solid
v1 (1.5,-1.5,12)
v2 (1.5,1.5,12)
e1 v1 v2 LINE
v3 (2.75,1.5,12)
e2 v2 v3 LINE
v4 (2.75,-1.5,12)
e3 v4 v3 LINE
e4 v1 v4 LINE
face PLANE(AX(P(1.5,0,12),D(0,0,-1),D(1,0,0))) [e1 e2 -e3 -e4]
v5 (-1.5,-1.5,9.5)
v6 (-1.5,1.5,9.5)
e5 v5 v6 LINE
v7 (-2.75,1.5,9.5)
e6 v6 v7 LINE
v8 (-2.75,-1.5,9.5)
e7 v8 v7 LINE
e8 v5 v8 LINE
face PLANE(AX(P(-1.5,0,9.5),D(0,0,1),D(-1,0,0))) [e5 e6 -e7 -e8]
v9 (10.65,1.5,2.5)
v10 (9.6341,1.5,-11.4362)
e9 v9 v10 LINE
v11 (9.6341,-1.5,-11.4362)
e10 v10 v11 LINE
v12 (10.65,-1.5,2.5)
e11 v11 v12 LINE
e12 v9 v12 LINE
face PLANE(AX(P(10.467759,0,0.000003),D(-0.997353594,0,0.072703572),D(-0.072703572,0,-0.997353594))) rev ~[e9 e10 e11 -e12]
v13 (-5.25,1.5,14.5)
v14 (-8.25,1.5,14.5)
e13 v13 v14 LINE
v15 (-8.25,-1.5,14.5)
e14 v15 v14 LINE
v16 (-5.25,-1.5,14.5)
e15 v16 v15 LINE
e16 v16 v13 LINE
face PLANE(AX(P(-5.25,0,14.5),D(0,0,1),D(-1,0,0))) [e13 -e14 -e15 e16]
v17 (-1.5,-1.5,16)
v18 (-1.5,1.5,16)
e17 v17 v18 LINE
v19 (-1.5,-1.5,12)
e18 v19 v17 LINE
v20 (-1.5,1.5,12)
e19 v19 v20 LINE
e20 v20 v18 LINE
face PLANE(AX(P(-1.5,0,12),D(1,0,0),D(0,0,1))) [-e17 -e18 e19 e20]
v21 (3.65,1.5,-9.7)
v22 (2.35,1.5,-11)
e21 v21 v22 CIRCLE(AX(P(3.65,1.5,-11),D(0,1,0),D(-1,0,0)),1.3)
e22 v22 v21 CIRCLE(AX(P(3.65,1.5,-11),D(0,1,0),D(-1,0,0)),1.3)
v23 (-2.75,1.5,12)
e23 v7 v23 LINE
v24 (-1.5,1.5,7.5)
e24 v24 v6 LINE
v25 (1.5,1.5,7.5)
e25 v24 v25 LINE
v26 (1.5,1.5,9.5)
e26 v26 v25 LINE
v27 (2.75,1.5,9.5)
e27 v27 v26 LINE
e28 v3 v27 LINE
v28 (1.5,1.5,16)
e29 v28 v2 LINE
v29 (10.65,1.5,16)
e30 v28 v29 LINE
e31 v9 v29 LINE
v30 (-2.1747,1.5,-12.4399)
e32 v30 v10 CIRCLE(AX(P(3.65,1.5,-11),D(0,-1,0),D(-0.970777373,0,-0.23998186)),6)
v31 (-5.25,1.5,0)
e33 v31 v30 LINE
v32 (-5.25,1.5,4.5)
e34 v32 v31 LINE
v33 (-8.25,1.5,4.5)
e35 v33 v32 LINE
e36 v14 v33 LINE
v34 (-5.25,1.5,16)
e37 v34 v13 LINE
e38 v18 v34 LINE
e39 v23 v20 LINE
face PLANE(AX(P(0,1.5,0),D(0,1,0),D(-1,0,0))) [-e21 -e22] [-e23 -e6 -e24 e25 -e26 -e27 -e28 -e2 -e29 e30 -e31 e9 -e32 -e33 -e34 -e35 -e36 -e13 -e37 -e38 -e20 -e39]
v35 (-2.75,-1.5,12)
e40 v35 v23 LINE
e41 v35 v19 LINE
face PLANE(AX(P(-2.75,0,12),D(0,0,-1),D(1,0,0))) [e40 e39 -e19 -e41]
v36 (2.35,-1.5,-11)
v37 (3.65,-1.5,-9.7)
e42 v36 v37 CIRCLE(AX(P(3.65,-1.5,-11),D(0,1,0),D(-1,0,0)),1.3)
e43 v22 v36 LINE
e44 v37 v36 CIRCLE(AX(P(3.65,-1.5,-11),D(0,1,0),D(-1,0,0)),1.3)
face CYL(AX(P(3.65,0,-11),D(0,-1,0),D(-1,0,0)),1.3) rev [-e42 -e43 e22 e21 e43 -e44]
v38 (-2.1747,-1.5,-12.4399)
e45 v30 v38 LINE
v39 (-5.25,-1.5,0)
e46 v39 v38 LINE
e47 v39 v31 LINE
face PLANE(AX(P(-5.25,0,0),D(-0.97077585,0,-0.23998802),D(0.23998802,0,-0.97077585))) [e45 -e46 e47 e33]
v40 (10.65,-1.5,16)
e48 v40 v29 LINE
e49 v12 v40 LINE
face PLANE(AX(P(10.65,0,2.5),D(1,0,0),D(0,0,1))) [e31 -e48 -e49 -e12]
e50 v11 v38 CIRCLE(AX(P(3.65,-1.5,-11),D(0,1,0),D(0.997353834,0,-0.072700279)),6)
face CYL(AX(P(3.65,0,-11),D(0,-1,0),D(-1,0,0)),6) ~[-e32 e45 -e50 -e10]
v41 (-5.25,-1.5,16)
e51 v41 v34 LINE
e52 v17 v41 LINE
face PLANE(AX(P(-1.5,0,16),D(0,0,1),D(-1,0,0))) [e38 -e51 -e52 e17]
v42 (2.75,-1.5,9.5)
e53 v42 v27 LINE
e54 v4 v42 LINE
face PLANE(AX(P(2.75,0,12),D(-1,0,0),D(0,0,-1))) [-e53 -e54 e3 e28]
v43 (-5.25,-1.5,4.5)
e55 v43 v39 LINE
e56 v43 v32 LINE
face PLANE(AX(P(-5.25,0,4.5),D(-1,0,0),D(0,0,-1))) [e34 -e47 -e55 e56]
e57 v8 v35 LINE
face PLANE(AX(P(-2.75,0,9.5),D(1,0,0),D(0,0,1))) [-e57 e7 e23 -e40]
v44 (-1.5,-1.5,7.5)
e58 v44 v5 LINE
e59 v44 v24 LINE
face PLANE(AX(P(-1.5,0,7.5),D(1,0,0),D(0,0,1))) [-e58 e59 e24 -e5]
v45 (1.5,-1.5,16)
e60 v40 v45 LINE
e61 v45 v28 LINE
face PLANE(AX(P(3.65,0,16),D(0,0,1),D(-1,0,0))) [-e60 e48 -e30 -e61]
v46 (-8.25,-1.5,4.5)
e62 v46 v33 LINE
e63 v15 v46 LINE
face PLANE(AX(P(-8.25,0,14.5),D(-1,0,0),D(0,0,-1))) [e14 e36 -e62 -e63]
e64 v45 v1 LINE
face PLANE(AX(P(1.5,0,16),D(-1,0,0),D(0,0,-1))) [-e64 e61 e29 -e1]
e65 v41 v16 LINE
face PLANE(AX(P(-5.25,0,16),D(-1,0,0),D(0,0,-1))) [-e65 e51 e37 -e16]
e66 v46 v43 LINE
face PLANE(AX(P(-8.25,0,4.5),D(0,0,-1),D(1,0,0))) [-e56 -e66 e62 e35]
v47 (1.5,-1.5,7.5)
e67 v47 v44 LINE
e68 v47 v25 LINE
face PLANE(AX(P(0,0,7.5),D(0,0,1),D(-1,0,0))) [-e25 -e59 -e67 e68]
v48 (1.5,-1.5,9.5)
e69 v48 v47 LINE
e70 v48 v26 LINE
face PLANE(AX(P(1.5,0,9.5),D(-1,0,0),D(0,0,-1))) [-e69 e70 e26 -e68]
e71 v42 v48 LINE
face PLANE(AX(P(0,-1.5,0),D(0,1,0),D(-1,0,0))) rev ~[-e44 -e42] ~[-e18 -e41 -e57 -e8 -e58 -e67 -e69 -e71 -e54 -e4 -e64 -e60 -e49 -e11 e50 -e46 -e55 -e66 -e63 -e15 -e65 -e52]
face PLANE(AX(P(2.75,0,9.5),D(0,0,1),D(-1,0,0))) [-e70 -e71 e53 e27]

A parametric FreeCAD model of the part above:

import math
import FreeCAD as App
import Part
import Sketcher
Q = App.Units.Quantity

doc = App.newDocument("Part")
body = doc.addObject("PartDesign::Body", "Body")

sketch1 = doc.addObject("Sketcher::SketchObject", "Sketch")
body.addObject(sketch1)
sketch1.AttachmentSupport = (doc.XZ_Plane, [""])
sketch1.MapMode = "FlatFace"
sketch1.addGeometry(Part.LineSegment(App.Vector(-2.2, -12.4, 0), App.Vector(-5.2, 0, 0)), False)
sketch1.addGeometry(Part.LineSegment(App.Vector(-5.2, 0, 0), App.Vector(-5.2, 4.5, 0)), False)
sketch1.addGeometry(Part.LineSegment(App.Vector(-5.2, 4.5, 0), App.Vector(-8.2, 4.5, 0)), False)
sketch1.addGeometry(Part.LineSegment(App.Vector(-8.2, 4.5, 0), App.Vector(-8.2, 14.5, 0)), False)
sketch1.addGeometry(Part.LineSegment(App.Vector(-8.2, 14.5, 0), App.Vector(-5.2, 14.5, 0)), False)
sketch1.addGeometry(Part.LineSegment(App.Vector(-5.2, 14.5, 0), App.Vector(-5.2, 16, 0)), False)
sketch1.addGeometry(Part.LineSegment(App.Vector(-5.2, 16, 0), App.Vector(-1.5, 16, 0)), False)
sketch1.addGeometry(Part.LineSegment(App.Vector(-1.5, 16, 0), App.Vector(-1.5, 12, 0)), False)
sketch1.addGeometry(Part.LineSegment(App.Vector(-1.5, 12, 0), App.Vector(-2.8, 12, 0)), False)
sketch1.addGeometry(Part.LineSegment(App.Vector(-2.8, 12, 0), App.Vector(-2.8, 9.5, 0)), False)
sketch1.addGeometry(Part.LineSegment(App.Vector(-2.8, 9.5, 0), App.Vector(-1.5, 9.5, 0)), False)
sketch1.addGeometry(Part.LineSegment(App.Vector(-1.5, 9.5, 0), App.Vector(-1.5, 7.5, 0)), False)
sketch1.addGeometry(Part.LineSegment(App.Vector(-1.5, 7.5, 0), App.Vector(1.5, 7.5, 0)), False)
sketch1.addGeometry(Part.LineSegment(App.Vector(1.5, 7.5, 0), App.Vector(1.5, 9.5, 0)), False)
sketch1.addGeometry(Part.LineSegment(App.Vector(1.5, 9.5, 0), App.Vector(2.8, 9.5, 0)), False)
sketch1.addGeometry(Part.LineSegment(App.Vector(2.8, 9.5, 0), App.Vector(2.8, 12, 0)), False)
sketch1.addGeometry(Part.LineSegment(App.Vector(2.8, 12, 0), App.Vector(1.5, 12, 0)), False)
sketch1.addGeometry(Part.LineSegment(App.Vector(1.5, 12, 0), App.Vector(1.5, 16, 0)), False)
sketch1.addGeometry(Part.LineSegment(App.Vector(1.5, 16, 0), App.Vector(10.7, 16, 0)), False)
sketch1.addGeometry(Part.LineSegment(App.Vector(10.7, 16, 0), App.Vector(10.7, 2.5, 0)), False)
sketch1.addGeometry(Part.LineSegment(App.Vector(10.7, 2.5, 0), App.Vector(9.6, -11.4, 0)), False)
sketch1.addGeometry(Part.ArcOfCircle(Part.Circle(App.Vector(3.6, -11, 0), App.Vector(0, 0, 1), 6), math.radians(-166), math.radians(-4)), False)
sketch1.addGeometry(Part.Circle(App.Vector(3.6, -11, 0), App.Vector(0, 0, 1), 1.3), False)
sketch1.addConstraint(Sketcher.Constraint("Coincident", 0, 2, 1, 1))
sketch1.addConstraint(Sketcher.Constraint("Coincident", 1, 2, 2, 1))
sketch1.addConstraint(Sketcher.Constraint("Coincident", 2, 2, 3, 1))
sketch1.addConstraint(Sketcher.Constraint("Coincident", 3, 2, 4, 1))
sketch1.addConstraint(Sketcher.Constraint("Coincident", 4, 2, 5, 1))
sketch1.addConstraint(Sketcher.Constraint("Coincident", 5, 2, 6, 1))
sketch1.addConstraint(Sketcher.Constraint("Coincident", 6, 2, 7, 1))
sketch1.addConstraint(Sketcher.Constraint("Coincident", 7, 2, 8, 1))
sketch1.addConstraint(Sketcher.Constraint("Coincident", 8, 2, 9, 1))
sketch1.addConstraint(Sketcher.Constraint("Coincident", 9, 2, 10, 1))
sketch1.addConstraint(Sketcher.Constraint("Coincident", 10, 2, 11, 1))
sketch1.addConstraint(Sketcher.Constraint("Coincident", 11, 2, 12, 1))
sketch1.addConstraint(Sketcher.Constraint("Coincident", 12, 2, 13, 1))
sketch1.addConstraint(Sketcher.Constraint("Coincident", 13, 2, 14, 1))
sketch1.addConstraint(Sketcher.Constraint("Coincident", 14, 2, 15, 1))
sketch1.addConstraint(Sketcher.Constraint("Coincident", 15, 2, 16, 1))
sketch1.addConstraint(Sketcher.Constraint("Coincident", 16, 2, 17, 1))
sketch1.addConstraint(Sketcher.Constraint("Coincident", 17, 2, 18, 1))
sketch1.addConstraint(Sketcher.Constraint("Coincident", 18, 2, 19, 1))
sketch1.addConstraint(Sketcher.Constraint("Coincident", 19, 2, 20, 1))
sketch1.addConstraint(Sketcher.Constraint("Tangent", 20, 2, 21, 2))
sketch1.addConstraint(Sketcher.Constraint("Tangent", 21, 1, 0, 1))
sketch1.addConstraint(Sketcher.Constraint("Vertical", 1))
sketch1.addConstraint(Sketcher.Constraint("Horizontal", 2))
sketch1.addConstraint(Sketcher.Constraint("Vertical", 3))
sketch1.addConstraint(Sketcher.Constraint("Horizontal", 4))
sketch1.addConstraint(Sketcher.Constraint("Vertical", 5))
sketch1.addConstraint(Sketcher.Constraint("Horizontal", 6))
sketch1.addConstraint(Sketcher.Constraint("Vertical", 7))
sketch1.addConstraint(Sketcher.Constraint("Horizontal", 8))
sketch1.addConstraint(Sketcher.Constraint("Vertical", 9))
sketch1.addConstraint(Sketcher.Constraint("Horizontal", 10))
sketch1.addConstraint(Sketcher.Constraint("Vertical", 11))
sketch1.addConstraint(Sketcher.Constraint("Horizontal", 12))
sketch1.addConstraint(Sketcher.Constraint("Vertical", 13))
sketch1.addConstraint(Sketcher.Constraint("Horizontal", 14))
sketch1.addConstraint(Sketcher.Constraint("Vertical", 15))
sketch1.addConstraint(Sketcher.Constraint("Horizontal", 16))
sketch1.addConstraint(Sketcher.Constraint("Vertical", 17))
sketch1.addConstraint(Sketcher.Constraint("Horizontal", 18))
sketch1.addConstraint(Sketcher.Constraint("Vertical", 19))
sketch1.addConstraint(Sketcher.Constraint("Coincident", 22, 3, 21, 3))
sketch1.addConstraint(Sketcher.Constraint("Symmetric", 10, 2, 13, 2, -2))
sketch1.addConstraint(Sketcher.Constraint("Symmetric", 8, 2, 15, 2, -2))
sketch1.addConstraint(Sketcher.Constraint("Symmetric", 6, 2, 17, 2, -2))
sketch1.addConstraint(Sketcher.Constraint("PointOnObject", 0, 2, -1))
sketch1.addConstraint(Sketcher.Constraint("Vertical", 1, 2, 4, 2))
sketch1.addConstraint(Sketcher.Constraint("Vertical", 7, 2, 10, 2))
sketch1.addConstraint(Sketcher.Constraint("Equal", 4, 12))
sketch1.addConstraint(Sketcher.Constraint("Radius", 21, Q("6 mm")))
sketch1.addConstraint(Sketcher.Constraint("Diameter", 22, Q("2.6 mm")))
sketch1.addConstraint(Sketcher.Constraint("DistanceX", 2, 2, 2, 1, Q("3 mm")))
sketch1.addConstraint(Sketcher.Constraint("DistanceY", 3, 1, 3, 2, Q("10 mm")))
sketch1.addConstraint(Sketcher.Constraint("DistanceY", 7, 2, 7, 1, Q("4 mm")))
sketch1.addConstraint(Sketcher.Constraint("DistanceY", 11, 2, 11, 1, Q("2 mm")))
sketch1.addConstraint(Sketcher.Constraint("DistanceY", 5, 1, 5, 2, Q("1.5 mm")))
sketch1.addConstraint(Sketcher.Constraint("DistanceY", 9, 2, 9, 1, Q("2.5 mm")))
sketch1.addConstraint(Sketcher.Constraint("DistanceY", 19, 2, 19, 1, Q("13.5 mm")))
sketch1.addConstraint(Sketcher.Constraint("DistanceY", -1, 1, 5, 2, Q("16 mm")))
sketch1.addConstraint(Sketcher.Constraint("DistanceX", 8, 2, 8, 1, Q("1.25 mm")))
sketch1.addConstraint(Sketcher.Constraint("DistanceX", 18, 1, 18, 2, Q("9.15 mm")))
sketch1.addConstraint(Sketcher.Constraint("DistanceX", 4, 2, 8, 2, Q("2.5 mm")))
sketch1.addConstraint(Sketcher.Constraint("DistanceY", 21, 3, -1, 1, Q("11 mm")))
sketch1.addConstraint(Sketcher.Constraint("Angle", 20, Q("-94.1693 deg")))
pad1 = doc.addObject("PartDesign::Pad", "Pad")
body.addObject(pad1)
pad1.Profile = sketch1
pad1.Length = 3
pad1.Midplane = True

doc.recompute()
